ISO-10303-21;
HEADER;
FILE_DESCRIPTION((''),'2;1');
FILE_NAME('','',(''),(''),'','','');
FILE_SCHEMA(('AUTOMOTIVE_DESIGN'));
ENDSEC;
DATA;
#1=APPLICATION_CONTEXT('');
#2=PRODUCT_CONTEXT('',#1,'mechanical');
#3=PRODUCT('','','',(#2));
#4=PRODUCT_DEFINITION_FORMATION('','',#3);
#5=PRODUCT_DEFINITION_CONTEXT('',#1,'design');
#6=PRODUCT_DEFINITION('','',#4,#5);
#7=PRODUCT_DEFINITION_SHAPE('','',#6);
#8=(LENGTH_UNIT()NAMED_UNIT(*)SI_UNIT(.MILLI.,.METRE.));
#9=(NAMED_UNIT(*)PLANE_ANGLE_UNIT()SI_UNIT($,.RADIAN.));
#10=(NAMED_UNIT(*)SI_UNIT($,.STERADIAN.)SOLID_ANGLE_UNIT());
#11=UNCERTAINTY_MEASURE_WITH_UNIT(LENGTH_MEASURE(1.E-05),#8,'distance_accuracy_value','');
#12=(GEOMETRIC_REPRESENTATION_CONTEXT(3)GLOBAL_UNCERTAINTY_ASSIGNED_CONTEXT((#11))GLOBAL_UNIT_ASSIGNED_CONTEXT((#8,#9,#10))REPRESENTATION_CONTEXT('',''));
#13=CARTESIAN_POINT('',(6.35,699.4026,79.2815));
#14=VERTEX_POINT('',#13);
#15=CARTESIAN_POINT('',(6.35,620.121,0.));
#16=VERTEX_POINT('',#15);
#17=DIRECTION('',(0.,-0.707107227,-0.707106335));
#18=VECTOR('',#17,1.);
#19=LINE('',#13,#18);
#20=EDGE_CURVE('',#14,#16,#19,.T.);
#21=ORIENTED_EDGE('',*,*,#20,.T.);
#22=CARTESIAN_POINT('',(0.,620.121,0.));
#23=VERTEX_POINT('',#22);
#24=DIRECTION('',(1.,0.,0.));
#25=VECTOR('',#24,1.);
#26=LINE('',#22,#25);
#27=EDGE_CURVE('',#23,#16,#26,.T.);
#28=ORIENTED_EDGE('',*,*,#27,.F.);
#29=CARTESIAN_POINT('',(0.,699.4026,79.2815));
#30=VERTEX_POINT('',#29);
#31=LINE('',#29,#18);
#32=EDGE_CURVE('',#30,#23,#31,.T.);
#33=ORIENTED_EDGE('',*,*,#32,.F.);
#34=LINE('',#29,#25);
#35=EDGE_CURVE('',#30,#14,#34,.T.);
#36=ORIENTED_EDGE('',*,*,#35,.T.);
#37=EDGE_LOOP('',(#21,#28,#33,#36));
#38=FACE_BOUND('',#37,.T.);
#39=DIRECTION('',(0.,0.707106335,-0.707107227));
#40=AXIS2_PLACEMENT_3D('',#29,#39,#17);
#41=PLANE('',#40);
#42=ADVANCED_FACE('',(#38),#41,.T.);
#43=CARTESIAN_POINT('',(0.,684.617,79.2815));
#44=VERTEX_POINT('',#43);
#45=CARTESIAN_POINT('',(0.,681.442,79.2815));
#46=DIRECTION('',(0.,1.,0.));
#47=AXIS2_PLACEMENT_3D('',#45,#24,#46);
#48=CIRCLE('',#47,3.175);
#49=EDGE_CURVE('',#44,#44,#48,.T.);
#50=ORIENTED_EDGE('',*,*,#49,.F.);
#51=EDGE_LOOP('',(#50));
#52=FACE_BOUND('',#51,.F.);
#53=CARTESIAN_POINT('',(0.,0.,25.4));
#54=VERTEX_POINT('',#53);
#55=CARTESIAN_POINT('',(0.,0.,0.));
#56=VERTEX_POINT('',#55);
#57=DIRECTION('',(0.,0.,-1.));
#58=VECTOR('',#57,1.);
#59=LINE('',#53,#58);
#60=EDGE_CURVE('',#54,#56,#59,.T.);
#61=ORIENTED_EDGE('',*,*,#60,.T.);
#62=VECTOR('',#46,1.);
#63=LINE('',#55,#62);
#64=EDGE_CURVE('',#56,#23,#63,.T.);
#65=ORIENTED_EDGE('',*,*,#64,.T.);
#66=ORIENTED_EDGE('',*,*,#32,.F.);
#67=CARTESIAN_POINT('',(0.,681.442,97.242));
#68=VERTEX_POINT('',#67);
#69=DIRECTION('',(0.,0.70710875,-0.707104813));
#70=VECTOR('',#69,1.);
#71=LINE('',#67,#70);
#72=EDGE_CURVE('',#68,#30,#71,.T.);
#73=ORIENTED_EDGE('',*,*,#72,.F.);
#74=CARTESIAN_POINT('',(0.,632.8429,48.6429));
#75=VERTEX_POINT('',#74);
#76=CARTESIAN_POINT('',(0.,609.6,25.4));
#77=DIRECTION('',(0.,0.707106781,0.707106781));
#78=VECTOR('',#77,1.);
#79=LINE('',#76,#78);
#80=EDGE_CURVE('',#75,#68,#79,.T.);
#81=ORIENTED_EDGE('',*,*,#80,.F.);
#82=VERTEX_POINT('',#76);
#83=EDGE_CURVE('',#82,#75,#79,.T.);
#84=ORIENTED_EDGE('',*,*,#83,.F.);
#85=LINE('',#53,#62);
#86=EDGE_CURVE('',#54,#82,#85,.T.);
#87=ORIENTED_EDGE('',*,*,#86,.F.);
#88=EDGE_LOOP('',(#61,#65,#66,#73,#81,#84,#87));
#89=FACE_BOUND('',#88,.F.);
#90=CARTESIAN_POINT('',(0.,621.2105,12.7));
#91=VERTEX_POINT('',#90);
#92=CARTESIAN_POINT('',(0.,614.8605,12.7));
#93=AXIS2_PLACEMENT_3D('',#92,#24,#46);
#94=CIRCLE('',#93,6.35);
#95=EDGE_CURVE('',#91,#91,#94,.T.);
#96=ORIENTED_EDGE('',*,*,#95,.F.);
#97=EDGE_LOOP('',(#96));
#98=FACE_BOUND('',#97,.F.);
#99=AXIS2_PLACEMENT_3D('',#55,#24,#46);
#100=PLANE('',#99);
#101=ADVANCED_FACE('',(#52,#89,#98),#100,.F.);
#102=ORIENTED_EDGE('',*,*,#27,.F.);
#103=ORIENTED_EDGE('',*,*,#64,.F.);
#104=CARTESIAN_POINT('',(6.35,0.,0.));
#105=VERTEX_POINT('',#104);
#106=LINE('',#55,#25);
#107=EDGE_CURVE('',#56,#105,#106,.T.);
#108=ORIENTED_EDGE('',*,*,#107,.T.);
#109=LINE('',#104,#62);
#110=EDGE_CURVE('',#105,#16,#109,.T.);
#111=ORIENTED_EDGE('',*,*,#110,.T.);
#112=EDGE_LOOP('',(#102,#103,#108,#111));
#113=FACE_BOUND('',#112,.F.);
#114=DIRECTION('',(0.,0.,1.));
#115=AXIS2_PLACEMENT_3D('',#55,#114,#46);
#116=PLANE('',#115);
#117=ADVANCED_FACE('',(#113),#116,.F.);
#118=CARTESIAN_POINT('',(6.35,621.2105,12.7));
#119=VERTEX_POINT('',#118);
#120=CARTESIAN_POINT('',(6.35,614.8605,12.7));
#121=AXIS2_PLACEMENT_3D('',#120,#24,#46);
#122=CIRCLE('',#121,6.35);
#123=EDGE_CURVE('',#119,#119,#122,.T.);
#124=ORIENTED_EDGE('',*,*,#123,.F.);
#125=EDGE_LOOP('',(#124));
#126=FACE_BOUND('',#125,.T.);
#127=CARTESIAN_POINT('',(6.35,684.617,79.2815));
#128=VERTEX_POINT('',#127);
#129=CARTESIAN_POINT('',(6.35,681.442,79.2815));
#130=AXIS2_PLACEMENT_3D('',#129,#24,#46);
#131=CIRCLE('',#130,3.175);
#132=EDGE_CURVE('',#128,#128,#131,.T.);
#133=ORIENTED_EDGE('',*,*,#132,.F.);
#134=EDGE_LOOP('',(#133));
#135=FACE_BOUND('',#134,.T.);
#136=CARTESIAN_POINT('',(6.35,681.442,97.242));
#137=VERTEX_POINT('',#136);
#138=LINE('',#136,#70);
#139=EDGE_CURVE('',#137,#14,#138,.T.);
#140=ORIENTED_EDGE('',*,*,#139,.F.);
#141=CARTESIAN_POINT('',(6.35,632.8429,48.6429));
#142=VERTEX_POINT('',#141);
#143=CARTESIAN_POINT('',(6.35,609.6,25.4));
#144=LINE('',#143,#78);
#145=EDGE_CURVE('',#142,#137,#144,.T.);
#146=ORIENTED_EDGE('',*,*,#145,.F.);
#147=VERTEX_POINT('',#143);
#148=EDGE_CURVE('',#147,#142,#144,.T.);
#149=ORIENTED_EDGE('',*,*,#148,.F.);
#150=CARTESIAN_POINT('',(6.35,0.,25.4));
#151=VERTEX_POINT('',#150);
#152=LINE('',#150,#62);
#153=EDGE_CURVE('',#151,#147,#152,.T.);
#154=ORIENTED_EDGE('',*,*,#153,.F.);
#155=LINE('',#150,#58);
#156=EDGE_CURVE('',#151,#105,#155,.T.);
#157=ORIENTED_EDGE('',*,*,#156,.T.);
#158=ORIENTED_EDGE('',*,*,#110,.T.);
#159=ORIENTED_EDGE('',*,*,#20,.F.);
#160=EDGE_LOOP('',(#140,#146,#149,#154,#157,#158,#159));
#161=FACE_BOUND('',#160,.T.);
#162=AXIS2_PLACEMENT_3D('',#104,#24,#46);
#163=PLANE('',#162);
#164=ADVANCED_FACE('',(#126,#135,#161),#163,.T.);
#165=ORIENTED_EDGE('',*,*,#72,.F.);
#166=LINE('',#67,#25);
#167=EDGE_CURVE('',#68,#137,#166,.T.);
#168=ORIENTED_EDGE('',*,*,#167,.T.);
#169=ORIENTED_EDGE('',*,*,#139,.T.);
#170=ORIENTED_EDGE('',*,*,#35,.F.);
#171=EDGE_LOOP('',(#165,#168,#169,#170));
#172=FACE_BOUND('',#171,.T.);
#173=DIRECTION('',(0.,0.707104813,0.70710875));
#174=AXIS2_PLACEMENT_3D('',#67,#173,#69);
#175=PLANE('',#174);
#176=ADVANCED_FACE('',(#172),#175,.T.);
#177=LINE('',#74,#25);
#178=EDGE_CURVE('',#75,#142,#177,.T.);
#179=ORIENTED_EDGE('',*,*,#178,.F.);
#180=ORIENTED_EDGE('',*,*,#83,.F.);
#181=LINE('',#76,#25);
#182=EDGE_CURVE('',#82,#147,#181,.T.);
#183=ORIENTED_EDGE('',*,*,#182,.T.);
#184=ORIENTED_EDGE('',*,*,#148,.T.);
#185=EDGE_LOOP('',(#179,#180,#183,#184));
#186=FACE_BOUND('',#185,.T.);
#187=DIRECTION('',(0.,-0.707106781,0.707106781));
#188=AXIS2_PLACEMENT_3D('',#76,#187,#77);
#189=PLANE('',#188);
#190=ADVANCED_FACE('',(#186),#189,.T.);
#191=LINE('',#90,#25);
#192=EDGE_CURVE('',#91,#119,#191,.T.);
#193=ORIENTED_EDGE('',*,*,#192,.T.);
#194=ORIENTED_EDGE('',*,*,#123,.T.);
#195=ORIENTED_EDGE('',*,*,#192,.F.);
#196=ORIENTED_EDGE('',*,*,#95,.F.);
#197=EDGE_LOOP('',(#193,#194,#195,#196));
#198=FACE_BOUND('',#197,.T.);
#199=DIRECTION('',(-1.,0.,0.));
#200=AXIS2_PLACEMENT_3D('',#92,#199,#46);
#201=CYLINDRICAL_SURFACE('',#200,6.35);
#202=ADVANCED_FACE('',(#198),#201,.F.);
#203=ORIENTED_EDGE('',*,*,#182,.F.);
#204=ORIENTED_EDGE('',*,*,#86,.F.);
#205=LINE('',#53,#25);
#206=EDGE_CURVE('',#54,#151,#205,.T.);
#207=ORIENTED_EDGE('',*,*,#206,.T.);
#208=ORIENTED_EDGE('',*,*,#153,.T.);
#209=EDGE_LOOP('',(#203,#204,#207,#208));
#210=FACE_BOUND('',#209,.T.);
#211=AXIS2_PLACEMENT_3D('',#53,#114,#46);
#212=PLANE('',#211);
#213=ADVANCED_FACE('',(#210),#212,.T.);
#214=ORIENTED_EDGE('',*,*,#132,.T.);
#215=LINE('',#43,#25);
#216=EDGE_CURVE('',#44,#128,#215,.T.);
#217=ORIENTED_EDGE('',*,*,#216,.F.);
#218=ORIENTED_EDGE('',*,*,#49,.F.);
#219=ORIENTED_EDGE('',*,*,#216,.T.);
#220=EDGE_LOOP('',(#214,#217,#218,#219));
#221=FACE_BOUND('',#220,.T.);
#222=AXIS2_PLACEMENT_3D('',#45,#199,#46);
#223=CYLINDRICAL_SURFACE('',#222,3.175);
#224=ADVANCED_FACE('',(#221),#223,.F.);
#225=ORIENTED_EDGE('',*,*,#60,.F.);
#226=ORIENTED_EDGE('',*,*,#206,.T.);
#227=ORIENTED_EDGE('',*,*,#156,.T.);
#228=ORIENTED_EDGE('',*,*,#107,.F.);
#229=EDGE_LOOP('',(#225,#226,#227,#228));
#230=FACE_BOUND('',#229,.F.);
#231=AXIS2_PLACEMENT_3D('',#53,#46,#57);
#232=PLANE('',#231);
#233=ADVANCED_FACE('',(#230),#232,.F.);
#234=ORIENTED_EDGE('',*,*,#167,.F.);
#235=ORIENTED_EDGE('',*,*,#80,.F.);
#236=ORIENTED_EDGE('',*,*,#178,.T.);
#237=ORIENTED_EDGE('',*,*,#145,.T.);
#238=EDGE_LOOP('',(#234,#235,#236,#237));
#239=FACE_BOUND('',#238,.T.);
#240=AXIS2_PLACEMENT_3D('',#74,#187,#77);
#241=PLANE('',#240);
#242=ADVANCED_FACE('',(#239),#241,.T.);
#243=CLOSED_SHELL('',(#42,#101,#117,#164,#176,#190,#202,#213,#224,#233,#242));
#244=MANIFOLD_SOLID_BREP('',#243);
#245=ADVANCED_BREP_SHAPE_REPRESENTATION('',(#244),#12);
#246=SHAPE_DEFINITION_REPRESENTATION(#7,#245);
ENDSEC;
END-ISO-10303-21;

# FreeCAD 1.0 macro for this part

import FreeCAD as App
import Part
import Sketcher
from FreeCAD import Vector
Q = App.Units.Quantity


def add_polygon(sketch, points):
    """Adds a closed chain of lines whose ends are joined by coincident constraints."""
    first, n = sketch.GeometryCount, len(points)
    for a, b in zip(points, points[1:] + points[:1]):
        sketch.addGeometry(Part.LineSegment(App.Vector(*a, 0), App.Vector(*b, 0)), False)
    for i in range(n):
        sketch.addConstraint(Sketcher.Constraint("Coincident", first + i, 2, first + (i + 1) % n, 1))

doc = App.newDocument("Part")
body = doc.addObject("PartDesign::Body", "Body")

# Sketch on YZ plane
sketch1 = body.newObject("Sketcher::SketchObject", "Sketch")
sketch1.AttachmentSupport = (doc.getObject("YZ_Plane"), [""])
sketch1.MapMode = "FlatFace"
add_polygon(sketch1, [(609.6, 25.4), (0, 25.4), (0, 0), (620.121, 0), (699.4026, 79.2815), (681.442, 97.242)])  # lines 0-5
sketch1.addGeometry(Part.Circle(Vector(614.8605, 12.7, 0), Vector(0, 0, 1), 6.35), False)  # 6
sketch1.addGeometry(Part.Circle(Vector(681.442, 79.2815, 0), Vector(0, 0, 1), 3.175), False)  # 7
sketch1.addConstraint([
    Sketcher.Constraint("Horizontal", 0),
    Sketcher.Constraint("Vertical", 1),
    Sketcher.Constraint("Horizontal", 2),
    Sketcher.Constraint("Coincident", 1, 2, -1, 1),
    Sketcher.Constraint("Perpendicular", 3, 4),
    Sketcher.Constraint("Perpendicular", 4, 5),
    Sketcher.Constraint("Horizontal", 7, 3, 3, 2),
    Sketcher.Constraint("Vertical", 7, 3, 4, 2),
    Sketcher.Constraint("Diameter", 6, Q("0.5 in")),
    Sketcher.Constraint("Diameter", 7, Q("0.25 in")),
    Sketcher.Constraint("DistanceX", 0, 2, 0, 1, Q("24 in")),
    Sketcher.Constraint("DistanceY", 1, 2, 1, 1, Q("1 in")),
    Sketcher.Constraint("Distance", 4, Q("1 in")),
    Sketcher.Constraint("Distance", 5, Q("4 in")),
    Sketcher.Constraint("Angle", 4, Q("135.0002 deg")),
    Sketcher.Constraint("DistanceY", -1, 1, 6, 3, Q("0.5 in")),
    Sketcher.Constraint("DistanceX", -1, 1, 6, 3, Q("24.2071 in")),
])
pad1 = body.newObject("PartDesign::Pad", "Pad")
pad1.Profile = sketch1
pad1.Length = Q("0.25 in")

doc.recompute()
